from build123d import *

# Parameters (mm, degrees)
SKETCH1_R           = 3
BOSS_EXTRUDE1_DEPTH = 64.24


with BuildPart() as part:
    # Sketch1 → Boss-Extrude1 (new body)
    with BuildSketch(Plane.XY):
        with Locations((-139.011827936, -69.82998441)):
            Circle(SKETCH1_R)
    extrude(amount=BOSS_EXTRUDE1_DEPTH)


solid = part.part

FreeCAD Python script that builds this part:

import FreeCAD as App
import Part
import Sketcher
from FreeCAD import Vector

doc = App.newDocument("Part")
body = doc.addObject("PartDesign::Body", "Body")

sketch1 = doc.addObject("Sketcher::SketchObject", "Sketch")
body.addObject(sketch1)
sketch1.AttachmentSupport = (doc.XY_Plane, [""])
sketch1.MapMode = "FlatFace"
sketch1.addGeometry(Part.Circle(Vector(-139, -69.8, 0), Vector(0, 0, 1), 3), False)
sketch1.addConstraint(Sketcher.Constraint("Diameter", 0, 6.0))
sketch1.addConstraint(Sketcher.Constraint("DistanceX", 0, 3, -1, 1, 139.011828))
sketch1.addConstraint(Sketcher.Constraint("DistanceY", 0, 3, -1, 1, 69.829984))
pad1 = doc.addObject("PartDesign::Pad", "Pad")
body.addObject(pad1)
pad1.Profile = sketch1
pad1.Length = 64.24

doc.recompute()
